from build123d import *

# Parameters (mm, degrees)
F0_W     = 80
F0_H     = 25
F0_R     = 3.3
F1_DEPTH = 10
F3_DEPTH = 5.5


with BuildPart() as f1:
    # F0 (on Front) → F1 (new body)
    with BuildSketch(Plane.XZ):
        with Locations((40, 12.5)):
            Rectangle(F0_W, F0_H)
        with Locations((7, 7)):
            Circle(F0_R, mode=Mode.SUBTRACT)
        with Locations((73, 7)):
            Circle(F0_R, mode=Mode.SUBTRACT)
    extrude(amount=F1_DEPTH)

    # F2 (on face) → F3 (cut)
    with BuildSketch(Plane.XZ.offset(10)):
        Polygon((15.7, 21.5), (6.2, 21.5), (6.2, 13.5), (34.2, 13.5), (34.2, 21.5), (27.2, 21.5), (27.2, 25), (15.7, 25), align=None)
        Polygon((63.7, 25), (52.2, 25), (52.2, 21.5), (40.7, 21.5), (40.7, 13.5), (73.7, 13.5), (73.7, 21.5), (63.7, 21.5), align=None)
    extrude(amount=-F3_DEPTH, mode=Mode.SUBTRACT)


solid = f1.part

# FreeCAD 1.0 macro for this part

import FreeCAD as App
import Part
import Sketcher
from FreeCAD import Vector


def add_polygon(sketch, points):
    """Adds a closed chain of lines whose ends are joined by coincident constraints."""
    first, n = sketch.GeometryCount, len(points)
    for a, b in zip(points, points[1:] + points[:1]):
        sketch.addGeometry(Part.LineSegment(App.Vector(*a, 0), App.Vector(*b, 0)), False)
    for i in range(n):
        sketch.addConstraint(Sketcher.Constraint("Coincident", first + i, 2, first + (i + 1) % n, 1))

doc = App.newDocument("Part")
body = doc.addObject("PartDesign::Body", "Body")

sketch1 = doc.addObject("Sketcher::SketchObject", "Sketch")
body.addObject(sketch1)
sketch1.AttachmentSupport = (doc.XZ_Plane, [""])
sketch1.MapMode = "FlatFace"
add_polygon(sketch1, [(0, 25), (0, 0), (80, 0), (80, 25)])
sketch1.addGeometry(Part.Circle(Vector(7, 7, 0), Vector(0, 0, 1), 3.3), False)
sketch1.addGeometry(Part.Circle(Vector(73, 7, 0), Vector(0, 0, 1), 3.3), False)
sketch1.addConstraint([
    Sketcher.Constraint("Vertical", 0),
    Sketcher.Constraint("Horizontal", 1),
    Sketcher.Constraint("Vertical", 2),
    Sketcher.Constraint("Horizontal", 3),
    Sketcher.Constraint("Coincident", 0, 2, -1, 1),
    Sketcher.Constraint("Equal", 4, 5),
    Sketcher.Constraint("Horizontal", 4, 3, 5, 3),
    Sketcher.Constraint("Diameter", 4, 6.6),
    Sketcher.Constraint("DistanceX", 1, 1, 1, 2, 80.0),
    Sketcher.Constraint("DistanceY", 0, 2, 0, 1, 25.0),
    Sketcher.Constraint("DistanceX", -1, 1, 4, 3, 7.0),
    Sketcher.Constraint("DistanceY", -1, 1, 4, 3, 7.0),
    Sketcher.Constraint("DistanceX", -1, 1, 5, 3, 73.0),
])
pad1 = doc.addObject("PartDesign::Pad", "Pad")
body.addObject(pad1)
pad1.Profile = sketch1
pad1.Length = 10

sketch2 = doc.addObject("Sketcher::SketchObject", "Sketch001")
body.addObject(sketch2)
sketch2.AttachmentSupport = (doc.XZ_Plane, [""])
sketch2.MapMode = "FlatFace"
sketch2.AttachmentOffset = App.Placement(Vector(0, 0, 10), App.Rotation())
add_polygon(sketch2, [(15.7, 21.5), (6.2, 21.5), (6.2, 13.5), (34.2, 13.5), (34.2, 21.5), (27.2, 21.5), (27.2, 25), (15.7, 25)])
add_polygon(sketch2, [(63.7, 25), (52.2, 25), (52.2, 21.5), (40.7, 21.5), (40.7, 13.5), (73.7, 13.5), (73.7, 21.5), (63.7, 21.5)])
sketch2.addConstraint([
    Sketcher.Constraint("Horizontal", 0),
    Sketcher.Constraint("Vertical", 1),
    Sketcher.Constraint("Horizontal", 2),
    Sketcher.Constraint("Vertical", 3),
    Sketcher.Constraint("Horizontal", 4),
    Sketcher.Constraint("Vertical", 5),
    Sketcher.Constraint("Horizontal", 6),
    Sketcher.Constraint("Vertical", 7),
    Sketcher.Constraint("Horizontal", 8),
    Sketcher.Constraint("Vertical", 9),
    Sketcher.Constraint("Horizontal", 10),
    Sketcher.Constraint("Vertical", 11),
    Sketcher.Constraint("Horizontal", 12),
    Sketcher.Constraint("Vertical", 13),
    Sketcher.Constraint("Horizontal", 14),
    Sketcher.Constraint("Vertical", 15),
    Sketcher.Constraint("Horizontal", 0, 2, 3, 2),
    Sketcher.Constraint("Horizontal", 6, 2, 8, 2),
    Sketcher.Constraint("Horizontal", 7, 2, 9, 2),
    Sketcher.Constraint("Horizontal", 2, 2, 11, 2),
    Sketcher.Constraint("Horizontal", 10, 2, 13, 2),
    Sketcher.Constraint("Equal", 6, 8),
    Sketcher.Constraint("Equal", 8, 10),
    Sketcher.Constraint("DistanceX", 2, 1, 2, 2, 28.0),
    Sketcher.Constraint("DistanceX", 4, 2, 4, 1, 7.0),
    Sketcher.Constraint("DistanceX", 12, 1, 12, 2, 33.0),
    Sketcher.Constraint("DistanceX", 14, 2, 14, 1, 10.0),
    Sketcher.Constraint("DistanceY", 1, 2, 1, 1, 8.0),
    Sketcher.Constraint("DistanceY", 5, 1, 5, 2, 3.5),
    Sketcher.Constraint("DistanceY", -1, 1, 5, 2, 25.0),
    Sketcher.Constraint("DistanceX", 3, 2, 8, 2, 18.0),
    Sketcher.Constraint("DistanceX", -1, 1, 0, 2, 6.2),
])
pocket1 = doc.addObject("PartDesign::Pocket", "Pocket")
body.addObject(pocket1)
pocket1.Profile = sketch2
pocket1.Length = 5.5

doc.recompute()
